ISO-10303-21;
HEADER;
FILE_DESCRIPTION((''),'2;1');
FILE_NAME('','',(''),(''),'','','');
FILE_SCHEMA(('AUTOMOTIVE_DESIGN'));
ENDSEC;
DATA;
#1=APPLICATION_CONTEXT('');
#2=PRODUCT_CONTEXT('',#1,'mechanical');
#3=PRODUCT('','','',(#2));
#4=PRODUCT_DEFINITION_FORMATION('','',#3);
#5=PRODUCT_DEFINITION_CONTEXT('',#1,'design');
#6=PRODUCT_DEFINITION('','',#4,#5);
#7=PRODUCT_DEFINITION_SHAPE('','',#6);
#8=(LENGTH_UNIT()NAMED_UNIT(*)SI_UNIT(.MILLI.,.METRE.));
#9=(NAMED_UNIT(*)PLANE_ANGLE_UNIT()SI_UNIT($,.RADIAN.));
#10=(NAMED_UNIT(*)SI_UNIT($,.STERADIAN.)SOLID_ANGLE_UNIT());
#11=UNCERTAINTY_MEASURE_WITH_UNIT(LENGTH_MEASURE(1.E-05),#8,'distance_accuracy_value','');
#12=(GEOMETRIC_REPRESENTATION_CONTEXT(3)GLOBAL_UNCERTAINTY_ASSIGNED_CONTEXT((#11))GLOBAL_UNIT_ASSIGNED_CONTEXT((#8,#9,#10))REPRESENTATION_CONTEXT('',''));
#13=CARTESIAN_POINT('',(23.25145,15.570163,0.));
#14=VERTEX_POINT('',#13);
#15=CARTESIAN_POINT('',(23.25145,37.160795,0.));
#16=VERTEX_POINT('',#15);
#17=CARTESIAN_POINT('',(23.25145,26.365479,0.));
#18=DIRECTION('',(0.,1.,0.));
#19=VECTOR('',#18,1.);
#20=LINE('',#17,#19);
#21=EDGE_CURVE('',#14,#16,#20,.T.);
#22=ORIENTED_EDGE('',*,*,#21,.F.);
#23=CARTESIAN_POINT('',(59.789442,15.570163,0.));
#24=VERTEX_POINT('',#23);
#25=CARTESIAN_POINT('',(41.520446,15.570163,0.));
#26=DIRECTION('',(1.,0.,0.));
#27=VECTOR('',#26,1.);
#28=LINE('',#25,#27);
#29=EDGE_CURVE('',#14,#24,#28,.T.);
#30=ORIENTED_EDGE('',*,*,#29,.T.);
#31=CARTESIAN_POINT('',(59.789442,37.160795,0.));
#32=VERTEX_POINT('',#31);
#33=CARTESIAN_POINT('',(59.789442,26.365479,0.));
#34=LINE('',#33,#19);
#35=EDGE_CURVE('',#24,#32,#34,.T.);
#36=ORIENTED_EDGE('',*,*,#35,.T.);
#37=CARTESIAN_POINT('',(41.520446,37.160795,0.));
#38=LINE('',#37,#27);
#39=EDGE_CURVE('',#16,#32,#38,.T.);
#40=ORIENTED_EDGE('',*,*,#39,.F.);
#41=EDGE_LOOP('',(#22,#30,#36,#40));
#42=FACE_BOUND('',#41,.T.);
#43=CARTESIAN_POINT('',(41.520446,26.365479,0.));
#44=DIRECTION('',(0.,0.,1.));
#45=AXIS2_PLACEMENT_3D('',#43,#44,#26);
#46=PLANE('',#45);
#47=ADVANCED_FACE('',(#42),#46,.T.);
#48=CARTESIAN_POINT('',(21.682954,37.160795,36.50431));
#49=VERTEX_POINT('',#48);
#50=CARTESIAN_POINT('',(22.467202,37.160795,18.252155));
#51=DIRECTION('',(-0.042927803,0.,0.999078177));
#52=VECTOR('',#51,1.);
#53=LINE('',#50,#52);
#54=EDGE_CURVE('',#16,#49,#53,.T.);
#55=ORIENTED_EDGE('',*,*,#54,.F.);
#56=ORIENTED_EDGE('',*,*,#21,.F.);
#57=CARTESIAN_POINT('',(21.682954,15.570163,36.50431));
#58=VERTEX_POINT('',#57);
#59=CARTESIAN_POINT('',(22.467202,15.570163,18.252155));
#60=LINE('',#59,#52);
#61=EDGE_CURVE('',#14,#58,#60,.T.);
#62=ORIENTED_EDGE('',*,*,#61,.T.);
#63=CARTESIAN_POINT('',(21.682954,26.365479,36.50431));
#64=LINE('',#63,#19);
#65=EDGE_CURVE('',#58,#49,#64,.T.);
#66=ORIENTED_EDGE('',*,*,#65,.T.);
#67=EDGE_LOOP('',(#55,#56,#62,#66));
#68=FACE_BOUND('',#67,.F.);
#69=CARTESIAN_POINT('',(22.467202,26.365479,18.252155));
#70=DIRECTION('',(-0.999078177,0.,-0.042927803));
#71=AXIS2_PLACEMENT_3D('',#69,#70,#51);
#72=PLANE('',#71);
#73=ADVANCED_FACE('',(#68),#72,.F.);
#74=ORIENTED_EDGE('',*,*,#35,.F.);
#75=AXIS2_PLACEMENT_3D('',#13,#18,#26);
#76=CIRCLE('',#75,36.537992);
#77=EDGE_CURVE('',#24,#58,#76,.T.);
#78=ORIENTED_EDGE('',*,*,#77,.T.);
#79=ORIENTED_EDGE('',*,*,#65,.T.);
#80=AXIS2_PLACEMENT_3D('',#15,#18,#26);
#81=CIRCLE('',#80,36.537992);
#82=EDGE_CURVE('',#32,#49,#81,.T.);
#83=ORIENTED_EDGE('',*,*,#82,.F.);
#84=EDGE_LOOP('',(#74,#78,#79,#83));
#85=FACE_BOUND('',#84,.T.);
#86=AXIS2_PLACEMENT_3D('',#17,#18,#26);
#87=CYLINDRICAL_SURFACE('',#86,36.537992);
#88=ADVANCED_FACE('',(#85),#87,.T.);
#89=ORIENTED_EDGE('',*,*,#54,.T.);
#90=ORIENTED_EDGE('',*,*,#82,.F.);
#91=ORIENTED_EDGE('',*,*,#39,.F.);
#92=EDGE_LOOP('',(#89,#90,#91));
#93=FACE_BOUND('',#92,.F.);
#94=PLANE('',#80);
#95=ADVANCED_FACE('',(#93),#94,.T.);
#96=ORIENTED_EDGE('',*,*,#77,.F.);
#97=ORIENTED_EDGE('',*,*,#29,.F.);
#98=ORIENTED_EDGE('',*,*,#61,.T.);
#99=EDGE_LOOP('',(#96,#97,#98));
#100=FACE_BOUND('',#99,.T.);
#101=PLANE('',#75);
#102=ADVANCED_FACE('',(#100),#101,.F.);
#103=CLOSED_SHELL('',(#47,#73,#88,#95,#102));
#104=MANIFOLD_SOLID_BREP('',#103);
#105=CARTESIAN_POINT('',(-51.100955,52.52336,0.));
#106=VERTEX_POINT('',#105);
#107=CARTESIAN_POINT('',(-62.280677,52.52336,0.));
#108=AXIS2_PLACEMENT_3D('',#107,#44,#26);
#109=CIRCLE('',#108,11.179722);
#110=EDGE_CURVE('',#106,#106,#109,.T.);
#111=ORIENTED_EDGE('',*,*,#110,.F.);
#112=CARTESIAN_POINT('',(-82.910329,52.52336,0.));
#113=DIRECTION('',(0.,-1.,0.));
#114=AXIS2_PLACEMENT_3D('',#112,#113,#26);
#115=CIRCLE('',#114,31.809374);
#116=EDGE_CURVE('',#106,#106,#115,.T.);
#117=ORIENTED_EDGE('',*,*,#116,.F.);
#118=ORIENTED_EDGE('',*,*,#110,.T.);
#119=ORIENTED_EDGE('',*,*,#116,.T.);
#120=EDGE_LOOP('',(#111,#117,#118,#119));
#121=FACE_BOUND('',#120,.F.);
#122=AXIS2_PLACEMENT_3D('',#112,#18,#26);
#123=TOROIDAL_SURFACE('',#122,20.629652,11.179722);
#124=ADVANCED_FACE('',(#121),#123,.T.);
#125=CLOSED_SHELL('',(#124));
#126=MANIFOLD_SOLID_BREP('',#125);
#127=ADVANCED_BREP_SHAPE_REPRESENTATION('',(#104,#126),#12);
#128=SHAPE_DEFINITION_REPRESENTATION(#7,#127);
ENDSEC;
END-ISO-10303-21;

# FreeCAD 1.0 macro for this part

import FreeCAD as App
import Part
import Sketcher
from FreeCAD import Vector

doc = App.newDocument("Part")
body = doc.addObject("PartDesign::Body", "Body")

sketch1 = body.newObject("Sketcher::SketchObject", "Sketch")
sketch1.AttachmentSupport = (doc.getObject("XY_Plane"), [""])
sketch1.MapMode = "FlatFace"
sketch1.addGeometry([
    Part.LineSegment(Vector(23, 37, 0), Vector(23, 16, 0)),
    Part.LineSegment(Vector(23, 16, 0), Vector(60, 16, 0)),
    Part.LineSegment(Vector(60, 16, 0), Vector(60, 37, 0)),
    Part.LineSegment(Vector(60, 37, 0), Vector(23, 37, 0)),
], False)
sketch1.addGeometry(Part.LineSegment(Vector(23, 37, 0), Vector(23, 16, 0)), True)
sketch1.addConstraint([
    Sketcher.Constraint("Coincident", 0, 2, 1, 1),
    Sketcher.Constraint("Coincident", 1, 2, 2, 1),
    Sketcher.Constraint("Coincident", 2, 2, 3, 1),
    Sketcher.Constraint("Coincident", 3, 2, 0, 1),
    Sketcher.Constraint("Vertical", 0),
    Sketcher.Constraint("Horizontal", 1),
    Sketcher.Constraint("Vertical", 2),
    Sketcher.Constraint("Horizontal", 3),
    Sketcher.Constraint("Vertical", 4),
    Sketcher.Constraint("Coincident", 4, 1, 3, 2),
    Sketcher.Constraint("Horizontal", 1, 2, 4, 2),
    Sketcher.Constraint("DistanceX", 1, 1, 1, 2, 36.537992),
    Sketcher.Constraint("DistanceY", 0, 2, 0, 1, 21.590633),
    Sketcher.Constraint("DistanceX", -1, 1, 0, 2, 23.25145),
    Sketcher.Constraint("DistanceY", -1, 1, 0, 2, 15.570163),
])
revolution = body.newObject("PartDesign::Revolution", "Revolution")
revolution.Profile = sketch1
revolution.ReferenceAxis = (sketch1, ["Axis0"])
revolution.Angle = 267.539662
revolution.Reversed = True
body2 = doc.addObject("PartDesign::Body", "Body001")

sketch2 = body2.newObject("Sketcher::SketchObject", "Sketch001")
sketch2.AttachmentSupport = (doc.getObject("XY_Plane001"), [""])
sketch2.MapMode = "FlatFace"
sketch2.addGeometry(Part.Circle(Vector(-62, 53, 0), Vector(0, 0, 1), 11), False)
sketch2.addGeometry(Part.LineSegment(Vector(-83, 53, 0), Vector(-83, 43, 0)), True)
sketch2.addConstraint([
    Sketcher.Constraint("Vertical", 1),
    Sketcher.Constraint("Horizontal", 0, 3, 1, 1),
    Sketcher.Constraint("DistanceY", 1, 2, 1, 1, 10.0),
    Sketcher.Constraint("Diameter", 0, 22.359444),
    Sketcher.Constraint("DistanceY", -1, 1, 0, 3, 52.52336),
    Sketcher.Constraint("DistanceX", 1, 1, -1, 1, 82.910329),
    Sketcher.Constraint("DistanceX", 0, 3, -1, 1, 62.280677),
])
revolution2 = body2.newObject("PartDesign::Revolution", "Revolution001")
revolution2.Profile = sketch2
revolution2.ReferenceAxis = (sketch2, ["Axis0"])
revolution2.Angle = 360

doc.recompute()
